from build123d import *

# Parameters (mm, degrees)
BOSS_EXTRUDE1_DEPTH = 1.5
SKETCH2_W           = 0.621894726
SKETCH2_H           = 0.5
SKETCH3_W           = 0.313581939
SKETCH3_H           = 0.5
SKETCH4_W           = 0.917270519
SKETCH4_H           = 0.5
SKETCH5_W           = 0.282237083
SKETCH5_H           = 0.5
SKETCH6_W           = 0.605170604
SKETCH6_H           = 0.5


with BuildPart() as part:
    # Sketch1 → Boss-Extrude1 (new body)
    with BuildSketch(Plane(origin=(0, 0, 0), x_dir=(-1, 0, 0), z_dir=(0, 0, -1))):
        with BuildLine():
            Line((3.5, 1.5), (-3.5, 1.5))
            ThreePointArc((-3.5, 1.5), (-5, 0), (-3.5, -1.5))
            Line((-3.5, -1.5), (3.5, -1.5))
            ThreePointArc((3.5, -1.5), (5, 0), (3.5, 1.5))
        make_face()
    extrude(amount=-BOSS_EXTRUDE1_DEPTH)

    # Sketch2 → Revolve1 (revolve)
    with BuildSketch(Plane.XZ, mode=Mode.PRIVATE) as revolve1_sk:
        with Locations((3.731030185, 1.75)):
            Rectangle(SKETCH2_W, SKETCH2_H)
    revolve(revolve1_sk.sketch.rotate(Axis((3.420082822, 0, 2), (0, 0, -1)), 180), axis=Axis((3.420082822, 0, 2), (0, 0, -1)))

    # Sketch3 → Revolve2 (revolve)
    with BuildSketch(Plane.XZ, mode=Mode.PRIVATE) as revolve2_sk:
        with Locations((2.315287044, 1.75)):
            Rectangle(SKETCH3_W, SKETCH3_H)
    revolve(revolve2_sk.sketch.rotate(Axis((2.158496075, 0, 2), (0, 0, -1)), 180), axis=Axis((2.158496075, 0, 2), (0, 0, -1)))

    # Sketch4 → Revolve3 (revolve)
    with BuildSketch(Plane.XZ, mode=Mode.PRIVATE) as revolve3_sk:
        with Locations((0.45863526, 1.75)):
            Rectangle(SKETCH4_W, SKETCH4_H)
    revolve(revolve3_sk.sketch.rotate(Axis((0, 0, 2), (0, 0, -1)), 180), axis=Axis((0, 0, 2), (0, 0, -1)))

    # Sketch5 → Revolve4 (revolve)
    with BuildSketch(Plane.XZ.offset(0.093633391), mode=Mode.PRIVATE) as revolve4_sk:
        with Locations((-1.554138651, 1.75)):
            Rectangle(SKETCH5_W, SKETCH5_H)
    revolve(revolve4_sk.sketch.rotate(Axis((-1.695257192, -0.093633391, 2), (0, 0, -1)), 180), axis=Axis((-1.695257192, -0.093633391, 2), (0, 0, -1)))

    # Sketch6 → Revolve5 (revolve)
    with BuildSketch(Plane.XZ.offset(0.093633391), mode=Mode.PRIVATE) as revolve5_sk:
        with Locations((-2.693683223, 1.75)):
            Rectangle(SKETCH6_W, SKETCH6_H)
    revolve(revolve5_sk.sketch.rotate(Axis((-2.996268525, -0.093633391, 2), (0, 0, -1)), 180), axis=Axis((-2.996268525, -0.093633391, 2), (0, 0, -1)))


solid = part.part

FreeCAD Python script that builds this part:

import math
import FreeCAD as App
import Part
import Sketcher
from FreeCAD import Vector


def add_polygon(sketch, points):
    """Adds a closed chain of lines whose ends are joined by coincident constraints."""
    first, n = sketch.GeometryCount, len(points)
    for a, b in zip(points, points[1:] + points[:1]):
        sketch.addGeometry(Part.LineSegment(App.Vector(*a, 0), App.Vector(*b, 0)), False)
    for i in range(n):
        sketch.addConstraint(Sketcher.Constraint("Coincident", first + i, 2, first + (i + 1) % n, 1))

doc = App.newDocument("Part")
body = doc.addObject("PartDesign::Body", "Body")

# Sketch on XY plane
sketch1 = body.newObject("Sketcher::SketchObject", "Sketch")
sketch1.AttachmentSupport = (doc.getObject("XY_Plane"), [""])
sketch1.MapMode = "FlatFace"
sketch1.addGeometry(Part.LineSegment(Vector(-3.5, 1.5, 0), Vector(3.5, 1.5, 0)), False)
sketch1.addGeometry(Part.ArcOfCircle(Part.Circle(Vector(3.5, 0, 0), Vector(0, 0, 1), 1.5), math.radians(-90), math.radians(90)), False)
sketch1.addGeometry(Part.LineSegment(Vector(3.5, -1.5, 0), Vector(-3.5, -1.5, 0)), False)
sketch1.addGeometry(Part.ArcOfCircle(Part.Circle(Vector(-3.5, 0, 0), Vector(0, 0, 1), 1.5), math.radians(90), math.radians(270)), False)
sketch1.addConstraint(Sketcher.Constraint("Tangent", 0, 2, 1, 2))
sketch1.addConstraint(Sketcher.Constraint("Tangent", 1, 1, 2, 1))
sketch1.addConstraint(Sketcher.Constraint("Tangent", 2, 2, 3, 2))
sketch1.addConstraint(Sketcher.Constraint("Tangent", 3, 1, 0, 1))
sketch1.addConstraint(Sketcher.Constraint("Horizontal", 0))
sketch1.addConstraint(Sketcher.Constraint("Horizontal", 2))
sketch1.addConstraint(Sketcher.Constraint("Symmetric", 1, 3, 3, 3, -1, 1))
sketch1.addConstraint(Sketcher.Constraint("Radius", 1, 1.5))
sketch1.addConstraint(Sketcher.Constraint("DistanceX", 0, 1, 0, 2, 7.0))
pad1 = body.newObject("PartDesign::Pad", "Pad")
pad1.Profile = sketch1
pad1.Length = 1.5

# Sketch on XZ plane
sketch2 = body.newObject("Sketcher::SketchObject", "Sketch001")
sketch2.AttachmentSupport = (doc.getObject("XZ_Plane"), [""])
sketch2.MapMode = "FlatFace"
add_polygon(sketch2, [(3.420083, 2), (3.420083, 1.5), (4.041978, 1.5), (4.041978, 2)])  # lines 0-3
sketch2.addGeometry(Part.LineSegment(Vector(3.420083, 2, 0), Vector(3.420083, 1.5, 0)), True)  # axis
sketch2.addConstraint(Sketcher.Constraint("Vertical", 0))
sketch2.addConstraint(Sketcher.Constraint("Horizontal", 1))
sketch2.addConstraint(Sketcher.Constraint("Vertical", 2))
sketch2.addConstraint(Sketcher.Constraint("Horizontal", 3))
sketch2.addConstraint(Sketcher.Constraint("Vertical", 4))
sketch2.addConstraint(Sketcher.Constraint("Coincident", 4, 1, 3, 2))
sketch2.addConstraint(Sketcher.Constraint("Horizontal", 1, 2, 4, 2))
sketch2.addConstraint(Sketcher.Constraint("DistanceY", 0, 2, 0, 1, 0.5))
sketch2.addConstraint(Sketcher.Constraint("DistanceY", -1, 1, 2, 2, 2.0))
sketch2.addConstraint(Sketcher.Constraint("DistanceX", 1, 1, 1, 2, 0.621895))
sketch2.addConstraint(Sketcher.Constraint("DistanceX", -1, 1, 0, 2, 3.420083))
revolution = body.newObject("PartDesign::Revolution", "Revolution")
revolution.Profile = sketch2
revolution.ReferenceAxis = (sketch2, ["Axis0"])
revolution.Angle = 360

# Sketch on XZ plane
sketch3 = body.newObject("Sketcher::SketchObject", "Sketch002")
sketch3.AttachmentSupport = (doc.getObject("XZ_Plane"), [""])
sketch3.MapMode = "FlatFace"
add_polygon(sketch3, [(2.158496, 2), (2.158496, 1.5), (2.472078, 1.5), (2.472078, 2)])  # lines 0-3
sketch3.addGeometry(Part.LineSegment(Vector(2.158496, 2, 0), Vector(2.158496, 1.5, 0)), True)  # axis
sketch3.addConstraint(Sketcher.Constraint("Vertical", 0))
sketch3.addConstraint(Sketcher.Constraint("Horizontal", 1))
sketch3.addConstraint(Sketcher.Constraint("Vertical", 2))
sketch3.addConstraint(Sketcher.Constraint("Horizontal", 3))
sketch3.addConstraint(Sketcher.Constraint("Vertical", 4))
sketch3.addConstraint(Sketcher.Constraint("Coincident", 4, 1, 3, 2))
sketch3.addConstraint(Sketcher.Constraint("Horizontal", 1, 2, 4, 2))
sketch3.addConstraint(Sketcher.Constraint("DistanceY", 0, 2, 0, 1, 0.5))
sketch3.addConstraint(Sketcher.Constraint("DistanceY", -1, 1, 2, 2, 2.0))
sketch3.addConstraint(Sketcher.Constraint("DistanceX", 1, 1, 1, 2, 0.313582))
sketch3.addConstraint(Sketcher.Constraint("DistanceX", -1, 1, 1, 2, 2.472078))
revolution2 = body.newObject("PartDesign::Revolution", "Revolution001")
revolution2.Profile = sketch3
revolution2.ReferenceAxis = (sketch3, ["Axis0"])
revolution2.Angle = 360

# Sketch on XZ plane
sketch4 = body.newObject("Sketcher::SketchObject", "Sketch003")
sketch4.AttachmentSupport = (doc.getObject("XZ_Plane"), [""])
sketch4.MapMode = "FlatFace"
add_polygon(sketch4, [(0, 2), (0, 1.5), (0.917271, 1.5), (0.917271, 2)])  # lines 0-3
sketch4.addConstraint(Sketcher.Constraint("Vertical", 0))
sketch4.addConstraint(Sketcher.Constraint("Horizontal", 1))
sketch4.addConstraint(Sketcher.Constraint("Vertical", 2))
sketch4.addConstraint(Sketcher.Constraint("Horizontal", 3))
sketch4.addConstraint(Sketcher.Constraint("PointOnObject", 0, 2, -2))
sketch4.addConstraint(Sketcher.Constraint("DistanceY", 0, 2, 0, 1, 0.5))
sketch4.addConstraint(Sketcher.Constraint("DistanceY", -1, 1, 2, 2, 2.0))
sketch4.addConstraint(Sketcher.Constraint("DistanceX", 1, 1, 1, 2, 0.917271))
revolution3 = body.newObject("PartDesign::Revolution", "Revolution002")
revolution3.Profile = sketch4
revolution3.ReferenceAxis = (sketch4, ["V_Axis"])
revolution3.Angle = 360

# Sketch on XZ plane
sketch5 = body.newObject("Sketcher::SketchObject", "Sketch004")
sketch5.AttachmentSupport = (doc.getObject("XZ_Plane"), [""])
sketch5.MapMode = "FlatFace"
sketch5.AttachmentOffset = App.Placement(Vector(0, 0, 0.093633), App.Rotation())
add_polygon(sketch5, [(-1.695257, 2), (-1.695257, 1.5), (-1.41302, 1.5), (-1.41302, 2)])  # lines 0-3
sketch5.addGeometry(Part.LineSegment(Vector(-1.695257, 2, 0), Vector(-1.695257, 1.5, 0)), True)  # axis
sketch5.addConstraint(Sketcher.Constraint("Vertical", 0))
sketch5.addConstraint(Sketcher.Constraint("Horizontal", 1))
sketch5.addConstraint(Sketcher.Constraint("Vertical", 2))
sketch5.addConstraint(Sketcher.Constraint("Horizontal", 3))
sketch5.addConstraint(Sketcher.Constraint("Vertical", 4))
sketch5.addConstraint(Sketcher.Constraint("Coincident", 4, 1, 3, 2))
sketch5.addConstraint(Sketcher.Constraint("Horizontal", 1, 2, 4, 2))
sketch5.addConstraint(Sketcher.Constraint("DistanceY", 0, 2, 0, 1, 0.5))
sketch5.addConstraint(Sketcher.Constraint("DistanceY", -1, 1, 2, 2, 2.0))
sketch5.addConstraint(Sketcher.Constraint("DistanceX", 1, 1, 1, 2, 0.282237))
sketch5.addConstraint(Sketcher.Constraint("DistanceX", 1, 2, -1, 1, 1.41302))
revolution4 = body.newObject("PartDesign::Revolution", "Revolution003")
revolution4.Profile = sketch5
revolution4.ReferenceAxis = (sketch5, ["Axis0"])
revolution4.Angle = 360

# Sketch on XZ plane
sketch6 = body.newObject("Sketcher::SketchObject", "Sketch005")
sketch6.AttachmentSupport = (doc.getObject("XZ_Plane"), [""])
sketch6.MapMode = "FlatFace"
sketch6.AttachmentOffset = App.Placement(Vector(0, 0, 0.093633), App.Rotation())
add_polygon(sketch6, [(-2.996269, 2), (-2.996269, 1.5), (-2.391098, 1.5), (-2.391098, 2)])  # lines 0-3
sketch6.addGeometry(Part.LineSegment(Vector(-2.996269, 2, 0), Vector(-2.996269, 1.5, 0)), True)  # axis
sketch6.addConstraint(Sketcher.Constraint("Vertical", 0))
sketch6.addConstraint(Sketcher.Constraint("Horizontal", 1))
sketch6.addConstraint(Sketcher.Constraint("Vertical", 2))
sketch6.addConstraint(Sketcher.Constraint("Horizontal", 3))
sketch6.addConstraint(Sketcher.Constraint("Vertical", 4))
sketch6.addConstraint(Sketcher.Constraint("Coincident", 4, 1, 3, 2))
sketch6.addConstraint(Sketcher.Constraint("Horizontal", 1, 2, 4, 2))
sketch6.addConstraint(Sketcher.Constraint("DistanceY", 0, 2, 0, 1, 0.5))
sketch6.addConstraint(Sketcher.Constraint("DistanceY", -1, 1, 2, 2, 2.0))
sketch6.addConstraint(Sketcher.Constraint("DistanceX", 1, 1, 1, 2, 0.605171))
sketch6.addConstraint(Sketcher.Constraint("DistanceX", 0, 2, -1, 1, 2.996269))
revolution5 = body.newObject("PartDesign::Revolution", "Revolution004")
revolution5.Profile = sketch6
revolution5.ReferenceAxis = (sketch6, ["Axis0"])
revolution5.Angle = 360

doc.recompute()
